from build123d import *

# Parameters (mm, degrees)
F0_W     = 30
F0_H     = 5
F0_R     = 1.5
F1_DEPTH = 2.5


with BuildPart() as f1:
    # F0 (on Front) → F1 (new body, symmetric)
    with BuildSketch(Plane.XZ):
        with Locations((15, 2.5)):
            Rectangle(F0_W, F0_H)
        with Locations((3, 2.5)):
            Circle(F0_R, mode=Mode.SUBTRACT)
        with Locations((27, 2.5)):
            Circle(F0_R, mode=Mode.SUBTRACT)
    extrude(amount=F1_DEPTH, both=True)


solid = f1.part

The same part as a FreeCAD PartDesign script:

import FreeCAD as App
import Part
import Sketcher
from FreeCAD import Vector
Q = App.Units.Quantity

doc = App.newDocument("Part")
body = doc.addObject("PartDesign::Body", "Body")

sketch1 = body.newObject("Sketcher::SketchObject", "Sketch")
sketch1.AttachmentSupport = (doc.getObject("XZ_Plane"), [""])
sketch1.MapMode = "FlatFace"
sketch1.addGeometry(Part.LineSegment(Vector(0, 5, 0), Vector(0, 0, 0)), False)
sketch1.addGeometry(Part.LineSegment(Vector(0, 0, 0), Vector(30, 0, 0)), False)
sketch1.addGeometry(Part.LineSegment(Vector(30, 0, 0), Vector(30, 5, 0)), False)
sketch1.addGeometry(Part.LineSegment(Vector(30, 5, 0), Vector(0, 5, 0)), False)
sketch1.addGeometry(Part.Circle(Vector(3, 2.5, 0), Vector(0, 0, 1), 1.5), False)
sketch1.addGeometry(Part.Circle(Vector(27, 2.5, 0), Vector(0, 0, 1), 1.5), False)
sketch1.addConstraint(Sketcher.Constraint("Coincident", 0, 2, 1, 1))
sketch1.addConstraint(Sketcher.Constraint("Coincident", 1, 2, 2, 1))
sketch1.addConstraint(Sketcher.Constraint("Coincident", 2, 2, 3, 1))
sketch1.addConstraint(Sketcher.Constraint("Coincident", 3, 2, 0, 1))
sketch1.addConstraint(Sketcher.Constraint("Vertical", 0))
sketch1.addConstraint(Sketcher.Constraint("Horizontal", 1))
sketch1.addConstraint(Sketcher.Constraint("Vertical", 2))
sketch1.addConstraint(Sketcher.Constraint("Horizontal", 3))
sketch1.addConstraint(Sketcher.Constraint("Coincident", 0, 2, -1, 1))
sketch1.addConstraint(Sketcher.Constraint("Equal", 4, 5))
sketch1.addConstraint(Sketcher.Constraint("Horizontal", 4, 3, 5, 3))
sketch1.addConstraint(Sketcher.Constraint("Diameter", 4, Q("3 mm")))
sketch1.addConstraint(Sketcher.Constraint("DistanceX", 1, 1, 1, 2, Q("30 mm")))
sketch1.addConstraint(Sketcher.Constraint("DistanceY", 0, 2, 0, 1, Q("5 mm")))
sketch1.addConstraint(Sketcher.Constraint("DistanceX", -1, 1, 4, 3, Q("3 mm")))
sketch1.addConstraint(Sketcher.Constraint("DistanceX", -1, 1, 5, 3, Q("27 mm")))
sketch1.addConstraint(Sketcher.Constraint("DistanceY", -1, 1, 4, 3, Q("2.5 mm")))
pad1 = body.newObject("PartDesign::Pad", "Pad")
pad1.Profile = sketch1
pad1.Length = 5
pad1.Midplane = True

doc.recompute()
